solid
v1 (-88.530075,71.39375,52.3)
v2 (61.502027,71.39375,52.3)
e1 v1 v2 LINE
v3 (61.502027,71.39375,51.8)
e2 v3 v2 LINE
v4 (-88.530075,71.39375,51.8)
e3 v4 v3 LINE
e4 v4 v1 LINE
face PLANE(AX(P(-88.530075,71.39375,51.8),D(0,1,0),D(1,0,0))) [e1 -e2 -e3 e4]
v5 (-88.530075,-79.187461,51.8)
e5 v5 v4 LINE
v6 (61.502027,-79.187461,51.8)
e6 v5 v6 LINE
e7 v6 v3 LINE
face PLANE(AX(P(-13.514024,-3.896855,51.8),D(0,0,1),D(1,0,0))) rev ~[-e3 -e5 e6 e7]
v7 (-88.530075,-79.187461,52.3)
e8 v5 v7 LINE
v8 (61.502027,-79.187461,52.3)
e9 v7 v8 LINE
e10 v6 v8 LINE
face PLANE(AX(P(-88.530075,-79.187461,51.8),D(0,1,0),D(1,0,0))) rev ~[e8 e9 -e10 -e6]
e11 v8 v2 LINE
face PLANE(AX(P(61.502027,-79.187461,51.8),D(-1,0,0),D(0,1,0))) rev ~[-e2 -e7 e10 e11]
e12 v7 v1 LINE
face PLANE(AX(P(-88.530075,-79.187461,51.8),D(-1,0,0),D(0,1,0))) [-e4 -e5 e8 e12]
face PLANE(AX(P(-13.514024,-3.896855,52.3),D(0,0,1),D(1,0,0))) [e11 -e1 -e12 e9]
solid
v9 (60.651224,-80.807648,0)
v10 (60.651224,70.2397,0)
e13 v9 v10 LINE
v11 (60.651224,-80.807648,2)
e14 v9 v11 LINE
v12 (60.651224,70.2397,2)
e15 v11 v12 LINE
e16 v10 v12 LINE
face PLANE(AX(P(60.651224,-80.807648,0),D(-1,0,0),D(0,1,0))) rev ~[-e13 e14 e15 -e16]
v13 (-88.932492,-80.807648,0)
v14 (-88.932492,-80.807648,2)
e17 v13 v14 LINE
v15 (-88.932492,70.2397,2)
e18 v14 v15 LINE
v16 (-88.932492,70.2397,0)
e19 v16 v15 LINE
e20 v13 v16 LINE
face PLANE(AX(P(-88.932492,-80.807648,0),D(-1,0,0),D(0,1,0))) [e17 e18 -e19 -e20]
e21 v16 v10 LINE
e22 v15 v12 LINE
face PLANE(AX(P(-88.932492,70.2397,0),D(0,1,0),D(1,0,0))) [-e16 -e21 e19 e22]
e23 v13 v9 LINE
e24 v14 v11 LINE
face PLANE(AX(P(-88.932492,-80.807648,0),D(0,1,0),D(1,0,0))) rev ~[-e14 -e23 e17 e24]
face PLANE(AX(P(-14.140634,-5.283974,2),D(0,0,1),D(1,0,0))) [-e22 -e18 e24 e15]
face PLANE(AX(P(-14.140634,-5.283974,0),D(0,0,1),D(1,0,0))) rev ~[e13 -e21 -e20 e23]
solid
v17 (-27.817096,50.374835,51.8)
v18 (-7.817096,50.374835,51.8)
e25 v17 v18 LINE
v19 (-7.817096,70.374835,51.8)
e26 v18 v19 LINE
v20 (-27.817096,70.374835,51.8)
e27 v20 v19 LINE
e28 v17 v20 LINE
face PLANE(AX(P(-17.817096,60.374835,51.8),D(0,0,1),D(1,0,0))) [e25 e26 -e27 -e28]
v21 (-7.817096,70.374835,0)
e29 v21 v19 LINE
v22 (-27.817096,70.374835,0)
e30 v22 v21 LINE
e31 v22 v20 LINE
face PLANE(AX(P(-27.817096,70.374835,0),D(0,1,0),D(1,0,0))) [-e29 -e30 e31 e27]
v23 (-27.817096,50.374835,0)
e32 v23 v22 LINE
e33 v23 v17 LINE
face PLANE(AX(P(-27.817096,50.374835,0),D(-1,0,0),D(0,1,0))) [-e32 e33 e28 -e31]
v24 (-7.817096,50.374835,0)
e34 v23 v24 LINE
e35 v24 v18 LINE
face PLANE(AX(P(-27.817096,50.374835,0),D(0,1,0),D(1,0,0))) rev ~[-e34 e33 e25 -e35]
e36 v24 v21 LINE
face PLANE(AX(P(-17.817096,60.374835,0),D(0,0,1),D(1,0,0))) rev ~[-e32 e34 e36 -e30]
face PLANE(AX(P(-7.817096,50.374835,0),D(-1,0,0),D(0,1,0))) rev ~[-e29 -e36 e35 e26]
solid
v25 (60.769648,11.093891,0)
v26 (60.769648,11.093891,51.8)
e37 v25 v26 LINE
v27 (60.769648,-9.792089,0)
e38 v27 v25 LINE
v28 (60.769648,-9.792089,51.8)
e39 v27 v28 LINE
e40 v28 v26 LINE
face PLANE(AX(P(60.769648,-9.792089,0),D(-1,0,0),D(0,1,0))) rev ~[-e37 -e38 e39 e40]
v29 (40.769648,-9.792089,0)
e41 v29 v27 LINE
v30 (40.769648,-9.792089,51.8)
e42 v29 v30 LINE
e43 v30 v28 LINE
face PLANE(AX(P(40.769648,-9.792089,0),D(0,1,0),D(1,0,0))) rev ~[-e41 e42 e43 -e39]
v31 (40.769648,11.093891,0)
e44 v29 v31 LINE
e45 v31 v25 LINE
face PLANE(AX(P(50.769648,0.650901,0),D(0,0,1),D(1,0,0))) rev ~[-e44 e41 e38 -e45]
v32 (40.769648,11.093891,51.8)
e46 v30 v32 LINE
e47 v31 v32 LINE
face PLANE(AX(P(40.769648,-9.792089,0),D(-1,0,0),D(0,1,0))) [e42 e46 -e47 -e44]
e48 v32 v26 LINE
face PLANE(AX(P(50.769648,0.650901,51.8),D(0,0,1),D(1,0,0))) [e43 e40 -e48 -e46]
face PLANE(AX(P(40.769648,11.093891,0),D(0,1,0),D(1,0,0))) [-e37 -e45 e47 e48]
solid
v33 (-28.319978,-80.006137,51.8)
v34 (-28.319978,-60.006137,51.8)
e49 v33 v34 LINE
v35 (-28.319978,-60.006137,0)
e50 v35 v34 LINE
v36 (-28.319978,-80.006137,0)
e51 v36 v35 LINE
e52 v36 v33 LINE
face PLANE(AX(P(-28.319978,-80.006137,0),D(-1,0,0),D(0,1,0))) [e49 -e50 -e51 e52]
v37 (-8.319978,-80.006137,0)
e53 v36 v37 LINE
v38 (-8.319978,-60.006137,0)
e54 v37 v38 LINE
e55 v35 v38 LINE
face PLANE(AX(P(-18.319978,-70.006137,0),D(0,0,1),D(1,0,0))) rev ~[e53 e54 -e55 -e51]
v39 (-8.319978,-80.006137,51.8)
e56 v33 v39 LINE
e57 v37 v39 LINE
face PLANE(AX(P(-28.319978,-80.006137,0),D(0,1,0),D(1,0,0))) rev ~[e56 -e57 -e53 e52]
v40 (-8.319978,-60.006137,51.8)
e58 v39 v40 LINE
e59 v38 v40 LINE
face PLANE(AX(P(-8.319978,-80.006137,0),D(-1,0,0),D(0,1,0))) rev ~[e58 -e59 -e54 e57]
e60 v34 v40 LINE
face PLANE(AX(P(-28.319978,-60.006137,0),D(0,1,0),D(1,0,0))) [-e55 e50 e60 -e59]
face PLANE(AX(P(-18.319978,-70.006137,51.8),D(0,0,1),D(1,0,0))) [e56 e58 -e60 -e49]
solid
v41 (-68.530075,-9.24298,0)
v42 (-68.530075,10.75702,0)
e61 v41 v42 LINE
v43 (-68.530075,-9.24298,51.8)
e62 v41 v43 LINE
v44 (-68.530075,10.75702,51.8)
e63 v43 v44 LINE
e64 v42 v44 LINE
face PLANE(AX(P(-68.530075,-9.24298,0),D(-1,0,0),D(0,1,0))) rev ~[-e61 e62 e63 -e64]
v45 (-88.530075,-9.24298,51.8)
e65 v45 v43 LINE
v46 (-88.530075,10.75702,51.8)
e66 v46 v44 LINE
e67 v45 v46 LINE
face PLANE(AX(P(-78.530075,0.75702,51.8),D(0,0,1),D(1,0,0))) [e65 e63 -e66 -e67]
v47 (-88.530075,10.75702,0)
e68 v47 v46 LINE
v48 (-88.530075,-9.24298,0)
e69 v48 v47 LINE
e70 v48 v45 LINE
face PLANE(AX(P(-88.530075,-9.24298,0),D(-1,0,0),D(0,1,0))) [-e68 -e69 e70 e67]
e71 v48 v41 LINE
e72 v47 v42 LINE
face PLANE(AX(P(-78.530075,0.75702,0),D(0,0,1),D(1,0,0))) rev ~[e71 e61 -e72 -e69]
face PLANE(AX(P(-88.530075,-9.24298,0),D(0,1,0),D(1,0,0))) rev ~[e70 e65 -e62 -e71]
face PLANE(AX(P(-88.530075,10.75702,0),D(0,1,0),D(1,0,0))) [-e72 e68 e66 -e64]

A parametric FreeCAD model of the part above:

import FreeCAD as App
import Part
import Sketcher
Q = App.Units.Quantity


def add_polygon(sketch, points):
    """Adds a closed chain of lines whose ends are joined by coincident constraints."""
    first, n = sketch.GeometryCount, len(points)
    for a, b in zip(points, points[1:] + points[:1]):
        sketch.addGeometry(Part.LineSegment(App.Vector(*a, 0), App.Vector(*b, 0)), False)
    for i in range(n):
        sketch.addConstraint(Sketcher.Constraint("Coincident", first + i, 2, first + (i + 1) % n, 1))

doc = App.newDocument("Part")
body = doc.addObject("PartDesign::Body", "Body")
body.AllowCompound = True

# Sketch on XY plane
sketch1 = body.newObject("Sketcher::SketchObject", "Sketch")
sketch1.AttachmentSupport = (doc.getObject("XY_Plane"), [""])
sketch1.MapMode = "FlatFace"
add_polygon(sketch1, [(-28, 70), (-28, 50), (-8, 50), (-8, 70)])  # lines 0-3
add_polygon(sketch1, [(-89, 11), (-89, -9), (-69, -9), (-69, 11)])  # lines 4-7
add_polygon(sketch1, [(-28, -60), (-28, -80), (-8, -80), (-8, -60)])  # lines 8-11
add_polygon(sketch1, [(41, 11), (41, -10), (61, -10), (61, 11)])  # lines 12-15
sketch1.addConstraint([
    Sketcher.Constraint("Vertical", 0),
    Sketcher.Constraint("Horizontal", 1),
    Sketcher.Constraint("Vertical", 2),
    Sketcher.Constraint("Horizontal", 3),
    Sketcher.Constraint("Vertical", 4),
    Sketcher.Constraint("Horizontal", 5),
    Sketcher.Constraint("Vertical", 6),
    Sketcher.Constraint("Horizontal", 7),
    Sketcher.Constraint("Vertical", 8),
    Sketcher.Constraint("Horizontal", 9),
    Sketcher.Constraint("Vertical", 10),
    Sketcher.Constraint("Horizontal", 11),
    Sketcher.Constraint("Vertical", 12),
    Sketcher.Constraint("Horizontal", 13),
    Sketcher.Constraint("Vertical", 14),
    Sketcher.Constraint("Horizontal", 15),
    Sketcher.Constraint("Equal", 3, 5),
    Sketcher.Constraint("Equal", 7, 9),
    Sketcher.Constraint("Equal", 11, 13),
    Sketcher.Constraint("Equal", 15, 0),
    Sketcher.Constraint("Equal", 2, 4),
    Sketcher.Constraint("Equal", 6, 8),
    Sketcher.Constraint("DistanceX", 1, 1, 1, 2, Q("20 mm")),
    Sketcher.Constraint("DistanceY", 12, 2, 12, 1, Q("20.88598 mm")),
    Sketcher.Constraint("DistanceY", 4, 2, -1, 1, Q("9.24298 mm")),
    Sketcher.Constraint("DistanceX", 9, 2, -1, 1, Q("8.319978 mm")),
    Sketcher.Constraint("DistanceY", 12, 2, -1, 1, Q("9.792089 mm")),
    Sketcher.Constraint("DistanceX", 4, 2, 0, 2, Q("60.712979 mm")),
    Sketcher.Constraint("DistanceX", 8, 2, 0, 2, Q("0.502882 mm")),
    Sketcher.Constraint("DistanceY", 8, 2, 0, 2, Q("130.380972 mm")),
    Sketcher.Constraint("DistanceY", 10, 2, 12, 2, Q("50.214048 mm")),
    Sketcher.Constraint("DistanceX", -1, 1, 12, 2, Q("40.769648 mm")),
])
pad1 = body.newObject("PartDesign::Pad", "Pad")
pad1.Profile = sketch1
pad1.Length = 51.8
body2 = doc.addObject("PartDesign::Body", "Body001")

# Sketch on XY plane
sketch2 = body2.newObject("Sketcher::SketchObject", "Sketch001")
sketch2.AttachmentSupport = (doc.getObject("XY_Plane001"), [""])
sketch2.MapMode = "FlatFace"
sketch2.AttachmentOffset = App.Placement(App.Vector(0, 0, 51.8), App.Rotation())
add_polygon(sketch2, [(-89, 71), (-89, -79), (62, -79), (62, 71)])  # lines 0-3
sketch2.addConstraint([
    Sketcher.Constraint("Vertical", 0),
    Sketcher.Constraint("Horizontal", 1),
    Sketcher.Constraint("Vertical", 2),
    Sketcher.Constraint("Horizontal", 3),
    Sketcher.Constraint("DistanceY", 0, 2, 0, 1, Q("150.581211 mm")),
    Sketcher.Constraint("DistanceX", 1, 1, 1, 2, Q("150.032103 mm")),
    Sketcher.Constraint("DistanceY", 0, 2, -1, 1, Q("79.187461 mm")),
    Sketcher.Constraint("DistanceX", 0, 2, -1, 1, Q("88.530075 mm")),
])
pad2 = body2.newObject("PartDesign::Pad", "Pad001")
pad2.Profile = sketch2
pad2.Length = 0.5
body3 = doc.addObject("PartDesign::Body", "Body002")

# Sketch on XY plane
sketch3 = body3.newObject("Sketcher::SketchObject", "Sketch002")
sketch3.AttachmentSupport = (doc.getObject("XY_Plane002"), [""])
sketch3.MapMode = "FlatFace"
add_polygon(sketch3, [(-89, 70), (-89, -81), (61, -81), (61, 70)])  # lines 0-3
sketch3.addConstraint([
    Sketcher.Constraint("Vertical", 0),
    Sketcher.Constraint("Horizontal", 1),
    Sketcher.Constraint("Vertical", 2),
    Sketcher.Constraint("Horizontal", 3),
    Sketcher.Constraint("DistanceY", 0, 2, 0, 1, Q("151.047349 mm")),
    Sketcher.Constraint("DistanceY", -1, 1, 2, 2, Q("70.2397 mm")),
    Sketcher.Constraint("DistanceX", 1, 1, 1, 2, Q("149.583716 mm")),
    Sketcher.Constraint("DistanceX", 0, 2, -1, 1, Q("88.932492 mm")),
])
pad3 = body3.newObject("PartDesign::Pad", "Pad002")
pad3.Profile = sketch3
pad3.Length = 2

doc.recompute()
